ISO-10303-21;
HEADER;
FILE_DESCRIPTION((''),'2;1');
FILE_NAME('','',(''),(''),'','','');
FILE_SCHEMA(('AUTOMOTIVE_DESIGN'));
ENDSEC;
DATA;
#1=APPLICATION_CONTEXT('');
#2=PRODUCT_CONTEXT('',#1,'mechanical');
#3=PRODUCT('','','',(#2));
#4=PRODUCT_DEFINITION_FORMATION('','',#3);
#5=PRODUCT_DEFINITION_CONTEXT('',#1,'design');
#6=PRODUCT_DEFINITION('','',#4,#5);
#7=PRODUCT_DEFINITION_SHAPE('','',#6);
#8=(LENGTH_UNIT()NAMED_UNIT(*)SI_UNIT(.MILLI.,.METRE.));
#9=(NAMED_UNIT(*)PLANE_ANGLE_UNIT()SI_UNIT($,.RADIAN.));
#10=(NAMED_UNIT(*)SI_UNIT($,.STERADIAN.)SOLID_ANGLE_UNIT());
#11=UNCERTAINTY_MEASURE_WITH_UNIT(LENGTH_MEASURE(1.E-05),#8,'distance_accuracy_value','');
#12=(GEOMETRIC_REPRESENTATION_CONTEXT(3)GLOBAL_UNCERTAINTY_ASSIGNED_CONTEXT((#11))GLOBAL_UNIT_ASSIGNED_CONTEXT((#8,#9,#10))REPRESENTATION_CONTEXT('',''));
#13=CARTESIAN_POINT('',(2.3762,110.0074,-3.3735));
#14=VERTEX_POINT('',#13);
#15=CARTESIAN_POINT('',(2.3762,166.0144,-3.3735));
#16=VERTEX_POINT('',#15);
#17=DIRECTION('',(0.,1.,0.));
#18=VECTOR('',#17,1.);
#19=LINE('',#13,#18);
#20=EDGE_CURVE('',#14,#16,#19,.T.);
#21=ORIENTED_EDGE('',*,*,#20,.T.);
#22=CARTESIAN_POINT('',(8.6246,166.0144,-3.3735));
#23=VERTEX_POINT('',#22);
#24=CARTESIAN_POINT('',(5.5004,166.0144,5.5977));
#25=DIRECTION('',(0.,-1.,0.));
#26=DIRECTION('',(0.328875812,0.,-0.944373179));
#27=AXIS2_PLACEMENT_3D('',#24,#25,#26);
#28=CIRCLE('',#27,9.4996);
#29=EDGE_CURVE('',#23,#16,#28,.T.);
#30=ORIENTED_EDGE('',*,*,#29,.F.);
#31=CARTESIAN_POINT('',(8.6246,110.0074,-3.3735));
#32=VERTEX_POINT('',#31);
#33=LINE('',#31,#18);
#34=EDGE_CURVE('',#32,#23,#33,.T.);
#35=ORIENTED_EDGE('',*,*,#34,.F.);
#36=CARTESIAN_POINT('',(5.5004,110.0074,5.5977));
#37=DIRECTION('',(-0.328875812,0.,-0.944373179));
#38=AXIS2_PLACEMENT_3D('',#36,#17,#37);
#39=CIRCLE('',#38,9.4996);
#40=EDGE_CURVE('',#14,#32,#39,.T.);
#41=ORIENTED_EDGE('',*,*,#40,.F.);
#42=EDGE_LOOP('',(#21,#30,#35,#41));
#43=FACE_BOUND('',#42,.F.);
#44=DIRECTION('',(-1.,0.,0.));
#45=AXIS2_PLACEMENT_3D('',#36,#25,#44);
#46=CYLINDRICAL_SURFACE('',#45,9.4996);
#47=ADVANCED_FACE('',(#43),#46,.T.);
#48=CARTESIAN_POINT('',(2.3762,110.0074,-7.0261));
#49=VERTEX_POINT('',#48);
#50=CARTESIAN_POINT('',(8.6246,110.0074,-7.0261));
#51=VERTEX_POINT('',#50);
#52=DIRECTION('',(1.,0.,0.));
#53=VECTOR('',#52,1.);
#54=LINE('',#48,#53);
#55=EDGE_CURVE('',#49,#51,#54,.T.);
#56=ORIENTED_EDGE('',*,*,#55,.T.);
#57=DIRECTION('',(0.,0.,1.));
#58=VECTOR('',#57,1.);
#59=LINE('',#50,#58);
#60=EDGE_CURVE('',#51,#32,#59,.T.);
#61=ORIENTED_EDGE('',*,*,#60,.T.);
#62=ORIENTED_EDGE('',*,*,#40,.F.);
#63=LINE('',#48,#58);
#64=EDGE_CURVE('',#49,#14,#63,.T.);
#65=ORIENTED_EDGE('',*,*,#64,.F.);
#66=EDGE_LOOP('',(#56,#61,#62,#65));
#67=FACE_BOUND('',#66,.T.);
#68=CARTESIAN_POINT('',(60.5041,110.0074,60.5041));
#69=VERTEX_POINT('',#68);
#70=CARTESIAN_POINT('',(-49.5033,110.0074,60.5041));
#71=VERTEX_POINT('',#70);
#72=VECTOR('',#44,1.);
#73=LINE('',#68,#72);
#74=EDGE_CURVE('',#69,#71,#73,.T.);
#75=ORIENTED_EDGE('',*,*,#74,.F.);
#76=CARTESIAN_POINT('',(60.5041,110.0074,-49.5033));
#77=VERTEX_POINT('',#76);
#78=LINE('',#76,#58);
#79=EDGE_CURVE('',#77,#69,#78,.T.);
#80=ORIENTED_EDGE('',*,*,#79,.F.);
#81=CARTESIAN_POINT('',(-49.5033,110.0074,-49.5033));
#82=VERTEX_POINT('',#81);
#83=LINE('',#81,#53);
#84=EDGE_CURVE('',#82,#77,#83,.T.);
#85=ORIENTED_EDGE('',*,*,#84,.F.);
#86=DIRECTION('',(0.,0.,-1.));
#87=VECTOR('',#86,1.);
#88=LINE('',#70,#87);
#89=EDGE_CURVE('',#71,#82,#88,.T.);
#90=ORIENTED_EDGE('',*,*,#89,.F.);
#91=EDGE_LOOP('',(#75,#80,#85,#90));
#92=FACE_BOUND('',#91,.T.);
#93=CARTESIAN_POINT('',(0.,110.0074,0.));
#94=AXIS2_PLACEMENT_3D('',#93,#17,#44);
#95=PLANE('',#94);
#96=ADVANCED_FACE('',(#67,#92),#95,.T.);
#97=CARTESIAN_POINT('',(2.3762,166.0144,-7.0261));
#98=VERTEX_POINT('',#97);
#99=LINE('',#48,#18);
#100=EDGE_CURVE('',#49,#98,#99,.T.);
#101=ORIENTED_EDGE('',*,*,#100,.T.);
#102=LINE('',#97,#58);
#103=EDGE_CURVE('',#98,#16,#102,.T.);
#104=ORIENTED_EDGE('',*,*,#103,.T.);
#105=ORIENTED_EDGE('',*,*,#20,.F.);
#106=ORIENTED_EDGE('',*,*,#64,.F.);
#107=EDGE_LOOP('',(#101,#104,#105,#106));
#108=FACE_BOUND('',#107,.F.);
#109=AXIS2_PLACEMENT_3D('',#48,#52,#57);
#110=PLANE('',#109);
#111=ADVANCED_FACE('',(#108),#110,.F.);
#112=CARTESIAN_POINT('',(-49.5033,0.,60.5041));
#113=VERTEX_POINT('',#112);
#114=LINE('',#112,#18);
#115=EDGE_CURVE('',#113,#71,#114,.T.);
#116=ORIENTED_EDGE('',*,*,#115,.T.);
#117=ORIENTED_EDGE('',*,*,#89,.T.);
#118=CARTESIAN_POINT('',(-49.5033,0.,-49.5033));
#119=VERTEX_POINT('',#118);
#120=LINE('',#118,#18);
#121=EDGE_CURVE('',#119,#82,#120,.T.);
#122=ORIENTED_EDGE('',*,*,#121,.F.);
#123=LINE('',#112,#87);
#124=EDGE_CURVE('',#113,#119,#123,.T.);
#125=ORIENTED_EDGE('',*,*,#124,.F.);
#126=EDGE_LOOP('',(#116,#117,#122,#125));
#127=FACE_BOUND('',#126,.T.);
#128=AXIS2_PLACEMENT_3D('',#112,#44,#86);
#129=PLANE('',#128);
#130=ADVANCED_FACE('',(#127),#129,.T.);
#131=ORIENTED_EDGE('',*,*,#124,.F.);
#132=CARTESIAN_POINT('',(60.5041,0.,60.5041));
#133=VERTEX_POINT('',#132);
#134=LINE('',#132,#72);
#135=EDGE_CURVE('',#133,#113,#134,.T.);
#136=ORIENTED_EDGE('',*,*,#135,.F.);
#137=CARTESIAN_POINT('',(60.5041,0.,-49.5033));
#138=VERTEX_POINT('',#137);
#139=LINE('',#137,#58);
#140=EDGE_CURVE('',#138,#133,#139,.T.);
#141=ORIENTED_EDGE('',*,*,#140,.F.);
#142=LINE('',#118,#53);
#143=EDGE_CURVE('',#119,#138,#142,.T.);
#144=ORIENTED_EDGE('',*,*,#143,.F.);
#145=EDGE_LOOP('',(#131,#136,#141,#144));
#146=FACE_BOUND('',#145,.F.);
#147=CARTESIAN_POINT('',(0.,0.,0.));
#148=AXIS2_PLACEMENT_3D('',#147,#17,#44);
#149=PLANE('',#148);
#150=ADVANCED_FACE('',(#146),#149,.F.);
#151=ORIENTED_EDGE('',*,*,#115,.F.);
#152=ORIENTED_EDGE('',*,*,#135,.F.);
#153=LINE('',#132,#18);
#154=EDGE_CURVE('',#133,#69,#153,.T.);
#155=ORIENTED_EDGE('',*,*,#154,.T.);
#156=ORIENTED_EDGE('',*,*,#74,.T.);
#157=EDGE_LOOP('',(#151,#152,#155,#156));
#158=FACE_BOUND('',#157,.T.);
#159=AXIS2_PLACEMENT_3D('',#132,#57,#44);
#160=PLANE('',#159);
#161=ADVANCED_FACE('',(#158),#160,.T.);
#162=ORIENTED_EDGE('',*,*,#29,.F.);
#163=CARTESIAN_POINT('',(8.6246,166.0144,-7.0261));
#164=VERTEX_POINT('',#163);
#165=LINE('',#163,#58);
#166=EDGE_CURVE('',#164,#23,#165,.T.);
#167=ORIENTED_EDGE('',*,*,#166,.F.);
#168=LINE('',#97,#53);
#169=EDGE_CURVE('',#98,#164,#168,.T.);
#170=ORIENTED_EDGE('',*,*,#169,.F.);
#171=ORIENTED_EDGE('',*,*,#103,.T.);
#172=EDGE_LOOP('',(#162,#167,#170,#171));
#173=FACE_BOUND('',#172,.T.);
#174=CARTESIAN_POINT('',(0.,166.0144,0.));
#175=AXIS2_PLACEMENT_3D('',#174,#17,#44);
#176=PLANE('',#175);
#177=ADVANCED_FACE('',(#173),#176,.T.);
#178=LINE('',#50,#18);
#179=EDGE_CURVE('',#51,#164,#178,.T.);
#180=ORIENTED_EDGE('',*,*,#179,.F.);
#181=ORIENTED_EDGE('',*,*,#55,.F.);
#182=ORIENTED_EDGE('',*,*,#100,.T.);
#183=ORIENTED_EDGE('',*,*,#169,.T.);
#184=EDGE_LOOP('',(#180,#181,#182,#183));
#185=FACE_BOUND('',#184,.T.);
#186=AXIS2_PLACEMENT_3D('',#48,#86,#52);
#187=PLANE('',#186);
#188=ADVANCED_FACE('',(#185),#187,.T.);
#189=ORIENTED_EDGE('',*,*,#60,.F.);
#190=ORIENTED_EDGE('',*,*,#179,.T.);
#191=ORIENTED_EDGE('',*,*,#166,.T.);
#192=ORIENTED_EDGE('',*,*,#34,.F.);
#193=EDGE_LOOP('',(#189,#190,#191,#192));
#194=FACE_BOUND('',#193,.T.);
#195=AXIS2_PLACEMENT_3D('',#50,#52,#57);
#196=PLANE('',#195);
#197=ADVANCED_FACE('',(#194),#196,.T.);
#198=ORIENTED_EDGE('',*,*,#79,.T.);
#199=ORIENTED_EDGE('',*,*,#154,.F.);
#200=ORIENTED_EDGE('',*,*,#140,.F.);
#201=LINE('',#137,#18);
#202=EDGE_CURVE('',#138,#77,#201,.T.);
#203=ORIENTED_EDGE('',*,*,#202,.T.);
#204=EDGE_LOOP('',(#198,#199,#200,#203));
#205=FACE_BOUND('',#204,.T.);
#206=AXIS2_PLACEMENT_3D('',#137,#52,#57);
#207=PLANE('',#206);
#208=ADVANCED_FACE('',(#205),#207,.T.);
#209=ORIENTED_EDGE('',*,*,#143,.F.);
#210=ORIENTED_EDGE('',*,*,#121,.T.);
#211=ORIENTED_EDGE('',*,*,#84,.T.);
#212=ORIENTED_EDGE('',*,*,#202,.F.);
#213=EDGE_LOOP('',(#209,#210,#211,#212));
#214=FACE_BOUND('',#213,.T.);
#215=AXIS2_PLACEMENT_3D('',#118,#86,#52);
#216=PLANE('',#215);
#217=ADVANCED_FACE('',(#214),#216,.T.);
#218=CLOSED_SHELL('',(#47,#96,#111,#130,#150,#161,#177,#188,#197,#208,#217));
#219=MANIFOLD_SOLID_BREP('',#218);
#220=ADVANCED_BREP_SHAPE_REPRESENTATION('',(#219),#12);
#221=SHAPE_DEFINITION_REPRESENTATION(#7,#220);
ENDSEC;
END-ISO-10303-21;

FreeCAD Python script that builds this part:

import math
import FreeCAD as App
import Part
import Sketcher
Q = App.Units.Quantity

doc = App.newDocument("Part")
params = doc.addObject("Spreadsheet::Sheet", "Params")
for row, (alias, value) in enumerate([
    ("sketch1_width", "4.331 in"),
    ("pad1_length", "4.331 in"),
    ("sketch2_radius", "0.374 in"),
    ("sketch2_width", "0.246 in"),
    ("pad2_length", "2.205 in"),
], start=1):
    params.set(f"A{row}", alias)
    params.set(f"B{row}", "=" + value)
    params.setAlias(f"B{row}", alias)

body = doc.addObject("PartDesign::Body", "Body")

sketch1 = body.newObject("Sketcher::SketchObject", "Sketch")
sketch1.AttachmentSupport = (doc.getObject("XZ_Plane"), [""])
sketch1.MapMode = "FlatFace"
sketch1.addGeometry(Part.LineSegment(App.Vector(61, -50, 0), App.Vector(-50, -50, 0)), False)
sketch1.addGeometry(Part.LineSegment(App.Vector(-50, -50, 0), App.Vector(-50, 61, 0)), False)
sketch1.addGeometry(Part.LineSegment(App.Vector(-50, 61, 0), App.Vector(61, 61, 0)), False)
sketch1.addGeometry(Part.LineSegment(App.Vector(61, 61, 0), App.Vector(61, -50, 0)), False)
sketch1.addConstraint(Sketcher.Constraint("Coincident", 0, 2, 1, 1))
sketch1.addConstraint(Sketcher.Constraint("Coincident", 1, 2, 2, 1))
sketch1.addConstraint(Sketcher.Constraint("Coincident", 2, 2, 3, 1))
sketch1.addConstraint(Sketcher.Constraint("Coincident", 3, 2, 0, 1))
sketch1.addConstraint(Sketcher.Constraint("Horizontal", 0))
sketch1.addConstraint(Sketcher.Constraint("Vertical", 1))
sketch1.addConstraint(Sketcher.Constraint("Horizontal", 2))
sketch1.addConstraint(Sketcher.Constraint("Vertical", 3))
sketch1.addConstraint(Sketcher.Constraint("Equal", 2, 1))
sketch1.addConstraint(Sketcher.Constraint("DistanceX", 0, 2, 0, 1, Q("4.331 in")))
sketch1.addConstraint(Sketcher.Constraint("DistanceX", 0, 2, -1, 1, 49.5033))
sketch1.addConstraint(Sketcher.Constraint("DistanceY", 0, 2, -1, 1, 49.5033))
sketch1.setExpression("Constraints[9]", "Params.sketch1_width")
pad1 = body.newObject("PartDesign::Pad", "Pad")
pad1.Profile = sketch1
pad1.setExpression("Length", "Params.pad1_length")
pad1.Reversed = True

sketch2 = body.newObject("Sketcher::SketchObject", "Sketch001")
sketch2.AttachmentSupport = (doc.getObject("XZ_Plane"), [""])
sketch2.MapMode = "FlatFace"
sketch2.AttachmentOffset = App.Placement(App.Vector(0, 0, -4.331 * 25.4), App.Rotation())
sketch2.addGeometry(Part.ArcOfCircle(Part.Circle(App.Vector(5.5, 5.6, 0), App.Vector(0, 0, 1), 9.5), math.radians(-71), math.radians(251)), False)
sketch2.addGeometry(Part.LineSegment(App.Vector(8.6, -3.4, 0), App.Vector(8.6, -7, 0)), False)
sketch2.addGeometry(Part.LineSegment(App.Vector(8.6, -7, 0), App.Vector(2.4, -7, 0)), False)
sketch2.addGeometry(Part.LineSegment(App.Vector(2.4, -7, 0), App.Vector(2.4, -3.4, 0)), False)
sketch2.addConstraint(Sketcher.Constraint("Coincident", 0, 1, 1, 1))
sketch2.addConstraint(Sketcher.Constraint("Coincident", 1, 2, 2, 1))
sketch2.addConstraint(Sketcher.Constraint("Coincident", 2, 2, 3, 1))
sketch2.addConstraint(Sketcher.Constraint("Coincident", 3, 2, 0, 2))
sketch2.addConstraint(Sketcher.Constraint("Vertical", 1))
sketch2.addConstraint(Sketcher.Constraint("Horizontal", 2))
sketch2.addConstraint(Sketcher.Constraint("Vertical", 3))
sketch2.addConstraint(Sketcher.Constraint("Horizontal", 0, 1, 3, 2))
sketch2.addConstraint(Sketcher.Constraint("Radius", 0, Q("0.374 in")))
sketch2.addConstraint(Sketcher.Constraint("DistanceX", 2, 2, 2, 1, Q("0.246 in")))
sketch2.addConstraint(Sketcher.Constraint("DistanceY", 1, 2, 1, 1, Q("0.1438 in")))
sketch2.addConstraint(Sketcher.Constraint("DistanceX", -1, 1, 0, 3, 5.5004))
sketch2.addConstraint(Sketcher.Constraint("DistanceY", -1, 1, 0, 3, 5.5977))
sketch2.setExpression("Constraints[8]", "Params.sketch2_radius")
sketch2.setExpression("Constraints[9]", "Params.sketch2_width")
pad2 = body.newObject("PartDesign::Pad", "Pad001")
pad2.Profile = sketch2
pad2.setExpression("Length", "Params.pad2_length")
pad2.Reversed = True

doc.recompute()
